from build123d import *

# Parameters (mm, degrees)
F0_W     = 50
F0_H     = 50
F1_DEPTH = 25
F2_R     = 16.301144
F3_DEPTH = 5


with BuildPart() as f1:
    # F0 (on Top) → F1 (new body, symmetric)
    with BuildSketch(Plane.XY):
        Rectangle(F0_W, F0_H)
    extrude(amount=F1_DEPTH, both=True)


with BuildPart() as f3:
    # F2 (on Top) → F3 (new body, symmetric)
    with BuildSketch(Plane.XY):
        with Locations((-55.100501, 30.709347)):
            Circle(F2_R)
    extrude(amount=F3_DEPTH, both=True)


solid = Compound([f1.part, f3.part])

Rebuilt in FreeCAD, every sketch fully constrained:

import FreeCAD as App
import Part
import Sketcher

V = App.Vector
Q = App.Units.Quantity


def add_polygon(sketch, points):
    """Adds a closed chain of lines whose ends are joined by coincident constraints."""
    first, n = sketch.GeometryCount, len(points)
    for a, b in zip(points, points[1:] + points[:1]):
        sketch.addGeometry(Part.LineSegment(App.Vector(*a, 0), App.Vector(*b, 0)), False)
    for i in range(n):
        sketch.addConstraint(Sketcher.Constraint("Coincident", first + i, 2, first + (i + 1) % n, 1))

doc = App.newDocument("Part")
body = doc.addObject("PartDesign::Body", "Body")

# Sketch on XY plane
sketch1 = body.newObject("Sketcher::SketchObject", "Sketch")
sketch1.AttachmentSupport = (doc.getObject("XY_Plane"), [""])
sketch1.MapMode = "FlatFace"
add_polygon(sketch1, [(-25, 25), (-25, -25), (25, -25), (25, 25)])  # lines 0-3
sketch1.addConstraint(Sketcher.Constraint("Vertical", 0))
sketch1.addConstraint(Sketcher.Constraint("Horizontal", 1))
sketch1.addConstraint(Sketcher.Constraint("Vertical", 2))
sketch1.addConstraint(Sketcher.Constraint("Horizontal", 3))
sketch1.addConstraint(Sketcher.Constraint("Symmetric", 0, 2, 2, 2, -1, 1))
sketch1.addConstraint(Sketcher.Constraint("Equal", 3, 0))
sketch1.addConstraint(Sketcher.Constraint("DistanceX", 1, 1, 1, 2, Q("50 mm")))
pad1 = body.newObject("PartDesign::Pad", "Pad")
pad1.Profile = sketch1
pad1.Length = 50
pad1.Midplane = True
body2 = doc.addObject("PartDesign::Body", "Body001")

# Sketch on XY plane
sketch2 = body2.newObject("Sketcher::SketchObject", "Sketch001")
sketch2.AttachmentSupport = (doc.getObject("XY_Plane001"), [""])
sketch2.MapMode = "FlatFace"
sketch2.addGeometry(Part.Circle(V(-55, 31, 0), V(0, 0, 1), 16), False)
sketch2.addConstraint(Sketcher.Constraint("Diameter", 0, Q("32.602288 mm")))
sketch2.addConstraint(Sketcher.Constraint("DistanceX", 0, 3, -1, 1, Q("55.100501 mm")))
sketch2.addConstraint(Sketcher.Constraint("DistanceY", -1, 1, 0, 3, Q("30.709347 mm")))
pad2 = body2.newObject("PartDesign::Pad", "Pad001")
pad2.Profile = sketch2
pad2.Length = 10
pad2.Midplane = True

doc.recompute()
